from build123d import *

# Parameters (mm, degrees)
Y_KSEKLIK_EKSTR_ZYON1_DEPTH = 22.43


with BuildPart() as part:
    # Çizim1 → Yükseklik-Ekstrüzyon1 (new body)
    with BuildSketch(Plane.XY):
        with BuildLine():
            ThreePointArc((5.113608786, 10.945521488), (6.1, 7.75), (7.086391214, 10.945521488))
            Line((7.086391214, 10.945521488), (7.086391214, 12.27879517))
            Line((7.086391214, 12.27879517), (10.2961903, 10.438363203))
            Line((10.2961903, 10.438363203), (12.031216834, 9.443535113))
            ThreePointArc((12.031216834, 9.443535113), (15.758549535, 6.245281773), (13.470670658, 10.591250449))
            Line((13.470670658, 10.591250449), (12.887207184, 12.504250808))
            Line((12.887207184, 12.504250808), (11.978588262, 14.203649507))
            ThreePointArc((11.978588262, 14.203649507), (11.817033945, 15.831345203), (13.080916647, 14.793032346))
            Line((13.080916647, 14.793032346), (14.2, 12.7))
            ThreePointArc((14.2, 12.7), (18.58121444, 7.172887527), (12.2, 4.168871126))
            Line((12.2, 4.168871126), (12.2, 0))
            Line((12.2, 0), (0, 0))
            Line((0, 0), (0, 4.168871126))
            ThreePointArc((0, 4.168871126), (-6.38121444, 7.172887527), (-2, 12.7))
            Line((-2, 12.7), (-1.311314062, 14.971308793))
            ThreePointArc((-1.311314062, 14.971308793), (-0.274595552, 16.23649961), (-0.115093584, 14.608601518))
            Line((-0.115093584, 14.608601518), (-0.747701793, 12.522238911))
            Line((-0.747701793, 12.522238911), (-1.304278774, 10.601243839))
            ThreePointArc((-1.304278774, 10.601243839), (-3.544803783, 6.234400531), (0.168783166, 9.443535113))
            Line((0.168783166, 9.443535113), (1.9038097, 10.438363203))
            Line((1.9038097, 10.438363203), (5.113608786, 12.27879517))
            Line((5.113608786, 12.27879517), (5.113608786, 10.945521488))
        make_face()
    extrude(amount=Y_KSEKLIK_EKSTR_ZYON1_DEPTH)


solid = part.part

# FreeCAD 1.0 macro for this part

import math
import FreeCAD as App
import Part
import Sketcher
from FreeCAD import Vector

doc = App.newDocument("Part")
body = doc.addObject("PartDesign::Body", "Body")

# Sketch on XY plane
sketch1 = body.newObject("Sketcher::SketchObject", "Sketch")
sketch1.AttachmentSupport = (doc.getObject("XY_Plane"), [""])
sketch1.MapMode = "FlatFace"
sketch1.addGeometry(Part.ArcOfCircle(Part.Circle(Vector(6.1, 9.5, 0), Vector(0, 0, 1), 1.8), math.radians(124), math.radians(416)), False)
sketch1.addGeometry(Part.LineSegment(Vector(5.1, 10.9, 0), Vector(5.1, 12.3, 0)), False)
sketch1.addGeometry(Part.LineSegment(Vector(5.1, 12.3, 0), Vector(1.9, 10.4, 0)), False)
sketch1.addGeometry(Part.LineSegment(Vector(1.9, 10.4, 0), Vector(0.2, 9.4, 0)), False)
sketch1.addGeometry(Part.ArcOfCircle(Part.Circle(Vector(-2, 8.2, 0), Vector(0, 0, 1), 2.5), math.radians(74), math.radians(390)), False)
sketch1.addGeometry(Part.LineSegment(Vector(-1.3, 10.6, 0), Vector(-0.7, 12.5, 0)), False)
sketch1.addGeometry(Part.LineSegment(Vector(-0.7, 12.5, 0), Vector(-0.1, 14.6, 0)), False)
sketch1.addGeometry(Part.ArcOfCircle(Part.Circle(Vector(-0.5, 15.4, 0), Vector(0, 0, 1), 0.9), math.radians(-62), math.radians(208)), False)
sketch1.addGeometry(Part.LineSegment(Vector(-1.3, 15, 0), Vector(-2, 12.7, 0)), False)
sketch1.addGeometry(Part.ArcOfCircle(Part.Circle(Vector(-2, 8.2, 0), Vector(0, 0, 1), 4.5), math.radians(90), math.radians(296)), False)
sketch1.addGeometry(Part.LineSegment(Vector(0, 4.2, 0), Vector(0, 0, 0)), False)
sketch1.addGeometry(Part.LineSegment(Vector(0, 0, 0), Vector(12.2, 0, 0)), False)
sketch1.addGeometry(Part.LineSegment(Vector(12.2, 0, 0), Vector(12.2, 4.2, 0)), False)
sketch1.addGeometry(Part.ArcOfCircle(Part.Circle(Vector(14.2, 8.2, 0), Vector(0, 0, 1), 4.5), math.radians(-116), math.radians(90)), False)
sketch1.addGeometry(Part.LineSegment(Vector(14.2, 12.7, 0), Vector(13.1, 14.8, 0)), False)
sketch1.addGeometry(Part.ArcOfCircle(Part.Circle(Vector(12.2, 15.1, 0), Vector(0, 0, 1), 0.9), math.radians(-17), math.radians(253)), False)
sketch1.addGeometry(Part.LineSegment(Vector(12, 14.2, 0), Vector(12.9, 12.5, 0)), False)
sketch1.addGeometry(Part.LineSegment(Vector(12.9, 12.5, 0), Vector(13.5, 10.6, 0)), False)
sketch1.addGeometry(Part.ArcOfCircle(Part.Circle(Vector(14.2, 8.2, 0), Vector(0, 0, 1), 2.5), math.radians(150), math.radians(467)), False)
sketch1.addGeometry(Part.LineSegment(Vector(12, 9.4, 0), Vector(10.3, 10.4, 0)), False)
sketch1.addGeometry(Part.LineSegment(Vector(10.3, 10.4, 0), Vector(7.1, 12.3, 0)), False)
sketch1.addGeometry(Part.LineSegment(Vector(7.1, 12.3, 0), Vector(7.1, 10.9, 0)), False)
sketch1.addConstraint(Sketcher.Constraint("Coincident", 0, 1, 1, 1))
sketch1.addConstraint(Sketcher.Constraint("Coincident", 1, 2, 2, 1))
sketch1.addConstraint(Sketcher.Constraint("Coincident", 2, 2, 3, 1))
sketch1.addConstraint(Sketcher.Constraint("Coincident", 3, 2, 4, 2))
sketch1.addConstraint(Sketcher.Constraint("Coincident", 4, 1, 5, 1))
sketch1.addConstraint(Sketcher.Constraint("Coincident", 5, 2, 6, 1))
sketch1.addConstraint(Sketcher.Constraint("Coincident", 6, 2, 7, 1))
sketch1.addConstraint(Sketcher.Constraint("Coincident", 7, 2, 8, 1))
sketch1.addConstraint(Sketcher.Constraint("Coincident", 8, 2, 9, 1))
sketch1.addConstraint(Sketcher.Constraint("Coincident", 9, 2, 10, 1))
sketch1.addConstraint(Sketcher.Constraint("Coincident", 10, 2, 11, 1))
sketch1.addConstraint(Sketcher.Constraint("Coincident", 11, 2, 12, 1))
sketch1.addConstraint(Sketcher.Constraint("Coincident", 12, 2, 13, 1))
sketch1.addConstraint(Sketcher.Constraint("Coincident", 13, 2, 14, 1))
sketch1.addConstraint(Sketcher.Constraint("Coincident", 14, 2, 15, 1))
sketch1.addConstraint(Sketcher.Constraint("Coincident", 15, 2, 16, 1))
sketch1.addConstraint(Sketcher.Constraint("Coincident", 16, 2, 17, 1))
sketch1.addConstraint(Sketcher.Constraint("Coincident", 17, 2, 18, 2))
sketch1.addConstraint(Sketcher.Constraint("Coincident", 18, 1, 19, 1))
sketch1.addConstraint(Sketcher.Constraint("Coincident", 19, 2, 20, 1))
sketch1.addConstraint(Sketcher.Constraint("Coincident", 20, 2, 21, 1))
sketch1.addConstraint(Sketcher.Constraint("Coincident", 21, 2, 0, 2))
sketch1.addConstraint(Sketcher.Constraint("Vertical", 1))
sketch1.addConstraint(Sketcher.Constraint("Vertical", 10))
sketch1.addConstraint(Sketcher.Constraint("Horizontal", 11))
sketch1.addConstraint(Sketcher.Constraint("Vertical", 12))
sketch1.addConstraint(Sketcher.Constraint("Vertical", 21))
sketch1.addConstraint(Sketcher.Constraint("Coincident", 10, 2, -1, 1))
sketch1.addConstraint(Sketcher.Constraint("Coincident", 9, 3, 4, 3))
sketch1.addConstraint(Sketcher.Constraint("Coincident", 18, 3, 13, 3))
sketch1.addConstraint(Sketcher.Constraint("Equal", 9, 13))
sketch1.addConstraint(Sketcher.Constraint("Equal", 7, 15))
sketch1.addConstraint(Sketcher.Constraint("Equal", 4, 18))
sketch1.addConstraint(Sketcher.Constraint("Parallel", 2, 3))
sketch1.addConstraint(Sketcher.Constraint("Parallel", 6, 8))
sketch1.addConstraint(Sketcher.Constraint("Parallel", 14, 16))
sketch1.addConstraint(Sketcher.Constraint("Parallel", 19, 20))
sketch1.addConstraint(Sketcher.Constraint("Horizontal", 9, 3, 13, 3))
sketch1.addConstraint(Sketcher.Constraint("Horizontal", 9, 2, 12, 2))
sketch1.addConstraint(Sketcher.Constraint("Horizontal", 3, 2, 18, 1))
sketch1.addConstraint(Sketcher.Constraint("Horizontal", 2, 2, 19, 2))
sketch1.addConstraint(Sketcher.Constraint("Horizontal", 1, 2, 20, 2))
sketch1.addConstraint(Sketcher.Constraint("Horizontal", 0, 1, 21, 2))
sketch1.addConstraint(Sketcher.Constraint("Vertical", 9, 3, 8, 2))
sketch1.addConstraint(Sketcher.Constraint("Vertical", 18, 3, 13, 2))
sketch1.addConstraint(Sketcher.Constraint("Equal", 3, 5))
sketch1.addConstraint(Sketcher.Constraint("Equal", 8, 14))
sketch1.addConstraint(Sketcher.Constraint("Equal", 5, 17))
sketch1.addConstraint(Sketcher.Constraint("Equal", 17, 19))
sketch1.addConstraint(Sketcher.Constraint("Radius", 4, 2.5))
sketch1.addConstraint(Sketcher.Constraint("Radius", 9, 4.5))
sketch1.addConstraint(Sketcher.Constraint("Radius", 0, 1.75))
sketch1.addConstraint(Sketcher.Constraint("Distance", 3, 2.0))
sketch1.addConstraint(Sketcher.Constraint("DistanceX", 11, 1, 11, 2, 12.2))
sketch1.addConstraint(Sketcher.Constraint("DistanceX", 4, 3, -1, 1, 2.0))
sketch1.addConstraint(Sketcher.Constraint("Radius", 7, 0.885))
sketch1.addConstraint(Sketcher.Constraint("Distance", 2, 3.7))
sketch1.addConstraint(Sketcher.Constraint("DistanceY", -1, 1, 0, 3, 9.5))
sketch1.addConstraint(Sketcher.Constraint("DistanceY", -1, 1, 4, 3, 8.2))
sketch1.addConstraint(Sketcher.Constraint("DistanceX", 7, 3, 0, 1, 5.645001))
sketch1.addConstraint(Sketcher.Constraint("DistanceY", 17, 2, 16, 2, 1.913))
sketch1.addConstraint(Sketcher.Constraint("DistanceX", 5, 2, -1, 1, 0.747702))
sketch1.addConstraint(Sketcher.Constraint("DistanceY", -1, 1, 6, 2, 14.608602))
sketch1.addConstraint(Sketcher.Constraint("DistanceY", 1, 2, 15, 3, 2.772102))
sketch1.addConstraint(Sketcher.Constraint("DistanceX", 2, 2, 0, 1, 3.209799))
sketch1.addConstraint(Sketcher.Constraint("DistanceX", 7, 3, 6, 2, 0.416299))
sketch1.addConstraint(Sketcher.Constraint("DistanceX", 15, 3, 14, 2, 0.8466))
sketch1.addConstraint(Sketcher.Constraint("DistanceY", 16, 2, 15, 2, 1.699399))
sketch1.addConstraint(Sketcher.Constraint("Distance", 6, 2.180161))
sketch1.addConstraint(Sketcher.Constraint("DistanceX", 4, 1, -1, 1, 1.304279))
pad1 = body.newObject("PartDesign::Pad", "Pad")
pad1.Profile = sketch1
pad1.Length = 22.43

doc.recompute()
